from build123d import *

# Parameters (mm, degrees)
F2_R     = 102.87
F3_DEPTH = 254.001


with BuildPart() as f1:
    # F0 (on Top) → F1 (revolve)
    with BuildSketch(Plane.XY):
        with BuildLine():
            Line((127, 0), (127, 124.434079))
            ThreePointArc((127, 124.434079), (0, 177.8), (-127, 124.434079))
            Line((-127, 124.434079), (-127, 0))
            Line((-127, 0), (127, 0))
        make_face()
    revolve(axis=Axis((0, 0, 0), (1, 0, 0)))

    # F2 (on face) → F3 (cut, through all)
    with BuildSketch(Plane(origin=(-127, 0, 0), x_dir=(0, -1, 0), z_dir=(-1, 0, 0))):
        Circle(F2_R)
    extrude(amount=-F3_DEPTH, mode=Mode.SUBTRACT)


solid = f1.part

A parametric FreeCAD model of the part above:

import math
import FreeCAD as App
import Part
import Sketcher

V = App.Vector
Q = App.Units.Quantity

doc = App.newDocument("Part")
body = doc.addObject("PartDesign::Body", "Body")

# Sketch on XY plane
sketch1 = doc.addObject("Sketcher::SketchObject", "Sketch")
body.addObject(sketch1)
sketch1.AttachmentSupport = (doc.XY_Plane, [""])
sketch1.MapMode = "FlatFace"
sketch1.addGeometry([
    Part.LineSegment(V(127, 0, 0), V(127, 124.434079, 0)),
    Part.ArcOfCircle(Part.Circle(V(0, 0, 0), V(0, 0, 1), 177.8), math.radians(44.415309), math.radians(135.584691)),
    Part.LineSegment(V(-127, 124.434079, 0), V(-127, 0, 0)),
    Part.LineSegment(V(-127, 0, 0), V(127, 0, 0)),
], False)
sketch1.addConstraint([
    Sketcher.Constraint("Coincident", 0, 2, 1, 1),
    Sketcher.Constraint("Coincident", 1, 2, 2, 1),
    Sketcher.Constraint("Coincident", 2, 2, 3, 1),
    Sketcher.Constraint("Coincident", 3, 2, 0, 1),
    Sketcher.Constraint("Vertical", 0),
    Sketcher.Constraint("Vertical", 2),
    Sketcher.Constraint("Horizontal", 3),
    Sketcher.Constraint("Coincident", 1, 3, -1, 1),
    Sketcher.Constraint("Symmetric", 2, 2, 3, 2, -1, 1),
    Sketcher.Constraint("Radius", 1, Q("7 in")),
    Sketcher.Constraint("DistanceX", 3, 1, 3, 2, Q("10 in")),
])
revolution = doc.addObject("PartDesign::Revolution", "Revolution")
body.addObject(revolution)
revolution.Profile = sketch1
revolution.ReferenceAxis = (sketch1, ["H_Axis"])
revolution.Angle = 360

# Sketch on YZ plane
sketch2 = doc.addObject("Sketcher::SketchObject", "Sketch001")
body.addObject(sketch2)
sketch2.AttachmentSupport = (doc.YZ_Plane, [""])
sketch2.MapMode = "FlatFace"
sketch2.AttachmentOffset = App.Placement(V(0, 0, -5 * 25.4), App.Rotation())
sketch2.addGeometry(Part.Circle(V(0, 0, 0), V(0, 0, 1), 102.87), False)
sketch2.addConstraint([
    Sketcher.Constraint("Coincident", 0, 3, -1, 1),
    Sketcher.Constraint("Diameter", 0, Q("8.1 in")),
])
pocket1 = doc.addObject("PartDesign::Pocket", "Pocket")
body.addObject(pocket1)
pocket1.Profile = sketch2
pocket1.Type = "ThroughAll"
pocket1.Reversed = True

doc.recompute()
